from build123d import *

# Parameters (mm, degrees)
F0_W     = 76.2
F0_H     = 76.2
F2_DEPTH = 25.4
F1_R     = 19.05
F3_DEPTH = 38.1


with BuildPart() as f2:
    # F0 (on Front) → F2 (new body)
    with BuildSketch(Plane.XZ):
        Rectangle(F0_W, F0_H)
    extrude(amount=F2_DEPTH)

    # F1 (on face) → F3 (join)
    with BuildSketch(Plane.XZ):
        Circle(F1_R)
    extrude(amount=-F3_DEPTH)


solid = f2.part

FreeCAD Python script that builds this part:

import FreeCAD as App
import Part
import Sketcher
Q = App.Units.Quantity

doc = App.newDocument("Part")
body = doc.addObject("PartDesign::Body", "Body")

# Sketch on XZ plane
sketch1 = body.newObject("Sketcher::SketchObject", "Sketch")
sketch1.AttachmentSupport = (doc.getObject("XZ_Plane"), [""])
sketch1.MapMode = "FlatFace"
sketch1.addGeometry(Part.LineSegment(App.Vector(-38.1, 38.1, 0), App.Vector(-38.1, -38.1, 0)), False)
sketch1.addGeometry(Part.LineSegment(App.Vector(-38.1, -38.1, 0), App.Vector(38.1, -38.1, 0)), False)
sketch1.addGeometry(Part.LineSegment(App.Vector(38.1, -38.1, 0), App.Vector(38.1, 38.1, 0)), False)
sketch1.addGeometry(Part.LineSegment(App.Vector(38.1, 38.1, 0), App.Vector(-38.1, 38.1, 0)), False)
sketch1.addConstraint(Sketcher.Constraint("Coincident", 0, 2, 1, 1))
sketch1.addConstraint(Sketcher.Constraint("Coincident", 1, 2, 2, 1))
sketch1.addConstraint(Sketcher.Constraint("Coincident", 2, 2, 3, 1))
sketch1.addConstraint(Sketcher.Constraint("Coincident", 3, 2, 0, 1))
sketch1.addConstraint(Sketcher.Constraint("Vertical", 0))
sketch1.addConstraint(Sketcher.Constraint("Horizontal", 1))
sketch1.addConstraint(Sketcher.Constraint("Vertical", 2))
sketch1.addConstraint(Sketcher.Constraint("Horizontal", 3))
sketch1.addConstraint(Sketcher.Constraint("Symmetric", 0, 2, 2, 2, -1, 1))
sketch1.addConstraint(Sketcher.Constraint("Equal", 3, 0))
sketch1.addConstraint(Sketcher.Constraint("DistanceX", 1, 1, 1, 2, Q("3 in")))
pad1 = body.newObject("PartDesign::Pad", "Pad")
pad1.Profile = sketch1
pad1.Length = Q("1 in")

# Sketch on XZ plane
sketch2 = body.newObject("Sketcher::SketchObject", "Sketch001")
sketch2.AttachmentSupport = (doc.getObject("XZ_Plane"), [""])
sketch2.MapMode = "FlatFace"
sketch2.addGeometry(Part.Circle(App.Vector(0, 0, 0), App.Vector(0, 0, 1), 19.05), False)
sketch2.addConstraint(Sketcher.Constraint("Coincident", 0, 3, -1, 1))
sketch2.addConstraint(Sketcher.Constraint("Diameter", 0, Q("1.5 in")))
pad2 = body.newObject("PartDesign::Pad", "Pad001")
pad2.Profile = sketch2
pad2.Length = Q("1.5 in")
pad2.Reversed = True

doc.recompute()
